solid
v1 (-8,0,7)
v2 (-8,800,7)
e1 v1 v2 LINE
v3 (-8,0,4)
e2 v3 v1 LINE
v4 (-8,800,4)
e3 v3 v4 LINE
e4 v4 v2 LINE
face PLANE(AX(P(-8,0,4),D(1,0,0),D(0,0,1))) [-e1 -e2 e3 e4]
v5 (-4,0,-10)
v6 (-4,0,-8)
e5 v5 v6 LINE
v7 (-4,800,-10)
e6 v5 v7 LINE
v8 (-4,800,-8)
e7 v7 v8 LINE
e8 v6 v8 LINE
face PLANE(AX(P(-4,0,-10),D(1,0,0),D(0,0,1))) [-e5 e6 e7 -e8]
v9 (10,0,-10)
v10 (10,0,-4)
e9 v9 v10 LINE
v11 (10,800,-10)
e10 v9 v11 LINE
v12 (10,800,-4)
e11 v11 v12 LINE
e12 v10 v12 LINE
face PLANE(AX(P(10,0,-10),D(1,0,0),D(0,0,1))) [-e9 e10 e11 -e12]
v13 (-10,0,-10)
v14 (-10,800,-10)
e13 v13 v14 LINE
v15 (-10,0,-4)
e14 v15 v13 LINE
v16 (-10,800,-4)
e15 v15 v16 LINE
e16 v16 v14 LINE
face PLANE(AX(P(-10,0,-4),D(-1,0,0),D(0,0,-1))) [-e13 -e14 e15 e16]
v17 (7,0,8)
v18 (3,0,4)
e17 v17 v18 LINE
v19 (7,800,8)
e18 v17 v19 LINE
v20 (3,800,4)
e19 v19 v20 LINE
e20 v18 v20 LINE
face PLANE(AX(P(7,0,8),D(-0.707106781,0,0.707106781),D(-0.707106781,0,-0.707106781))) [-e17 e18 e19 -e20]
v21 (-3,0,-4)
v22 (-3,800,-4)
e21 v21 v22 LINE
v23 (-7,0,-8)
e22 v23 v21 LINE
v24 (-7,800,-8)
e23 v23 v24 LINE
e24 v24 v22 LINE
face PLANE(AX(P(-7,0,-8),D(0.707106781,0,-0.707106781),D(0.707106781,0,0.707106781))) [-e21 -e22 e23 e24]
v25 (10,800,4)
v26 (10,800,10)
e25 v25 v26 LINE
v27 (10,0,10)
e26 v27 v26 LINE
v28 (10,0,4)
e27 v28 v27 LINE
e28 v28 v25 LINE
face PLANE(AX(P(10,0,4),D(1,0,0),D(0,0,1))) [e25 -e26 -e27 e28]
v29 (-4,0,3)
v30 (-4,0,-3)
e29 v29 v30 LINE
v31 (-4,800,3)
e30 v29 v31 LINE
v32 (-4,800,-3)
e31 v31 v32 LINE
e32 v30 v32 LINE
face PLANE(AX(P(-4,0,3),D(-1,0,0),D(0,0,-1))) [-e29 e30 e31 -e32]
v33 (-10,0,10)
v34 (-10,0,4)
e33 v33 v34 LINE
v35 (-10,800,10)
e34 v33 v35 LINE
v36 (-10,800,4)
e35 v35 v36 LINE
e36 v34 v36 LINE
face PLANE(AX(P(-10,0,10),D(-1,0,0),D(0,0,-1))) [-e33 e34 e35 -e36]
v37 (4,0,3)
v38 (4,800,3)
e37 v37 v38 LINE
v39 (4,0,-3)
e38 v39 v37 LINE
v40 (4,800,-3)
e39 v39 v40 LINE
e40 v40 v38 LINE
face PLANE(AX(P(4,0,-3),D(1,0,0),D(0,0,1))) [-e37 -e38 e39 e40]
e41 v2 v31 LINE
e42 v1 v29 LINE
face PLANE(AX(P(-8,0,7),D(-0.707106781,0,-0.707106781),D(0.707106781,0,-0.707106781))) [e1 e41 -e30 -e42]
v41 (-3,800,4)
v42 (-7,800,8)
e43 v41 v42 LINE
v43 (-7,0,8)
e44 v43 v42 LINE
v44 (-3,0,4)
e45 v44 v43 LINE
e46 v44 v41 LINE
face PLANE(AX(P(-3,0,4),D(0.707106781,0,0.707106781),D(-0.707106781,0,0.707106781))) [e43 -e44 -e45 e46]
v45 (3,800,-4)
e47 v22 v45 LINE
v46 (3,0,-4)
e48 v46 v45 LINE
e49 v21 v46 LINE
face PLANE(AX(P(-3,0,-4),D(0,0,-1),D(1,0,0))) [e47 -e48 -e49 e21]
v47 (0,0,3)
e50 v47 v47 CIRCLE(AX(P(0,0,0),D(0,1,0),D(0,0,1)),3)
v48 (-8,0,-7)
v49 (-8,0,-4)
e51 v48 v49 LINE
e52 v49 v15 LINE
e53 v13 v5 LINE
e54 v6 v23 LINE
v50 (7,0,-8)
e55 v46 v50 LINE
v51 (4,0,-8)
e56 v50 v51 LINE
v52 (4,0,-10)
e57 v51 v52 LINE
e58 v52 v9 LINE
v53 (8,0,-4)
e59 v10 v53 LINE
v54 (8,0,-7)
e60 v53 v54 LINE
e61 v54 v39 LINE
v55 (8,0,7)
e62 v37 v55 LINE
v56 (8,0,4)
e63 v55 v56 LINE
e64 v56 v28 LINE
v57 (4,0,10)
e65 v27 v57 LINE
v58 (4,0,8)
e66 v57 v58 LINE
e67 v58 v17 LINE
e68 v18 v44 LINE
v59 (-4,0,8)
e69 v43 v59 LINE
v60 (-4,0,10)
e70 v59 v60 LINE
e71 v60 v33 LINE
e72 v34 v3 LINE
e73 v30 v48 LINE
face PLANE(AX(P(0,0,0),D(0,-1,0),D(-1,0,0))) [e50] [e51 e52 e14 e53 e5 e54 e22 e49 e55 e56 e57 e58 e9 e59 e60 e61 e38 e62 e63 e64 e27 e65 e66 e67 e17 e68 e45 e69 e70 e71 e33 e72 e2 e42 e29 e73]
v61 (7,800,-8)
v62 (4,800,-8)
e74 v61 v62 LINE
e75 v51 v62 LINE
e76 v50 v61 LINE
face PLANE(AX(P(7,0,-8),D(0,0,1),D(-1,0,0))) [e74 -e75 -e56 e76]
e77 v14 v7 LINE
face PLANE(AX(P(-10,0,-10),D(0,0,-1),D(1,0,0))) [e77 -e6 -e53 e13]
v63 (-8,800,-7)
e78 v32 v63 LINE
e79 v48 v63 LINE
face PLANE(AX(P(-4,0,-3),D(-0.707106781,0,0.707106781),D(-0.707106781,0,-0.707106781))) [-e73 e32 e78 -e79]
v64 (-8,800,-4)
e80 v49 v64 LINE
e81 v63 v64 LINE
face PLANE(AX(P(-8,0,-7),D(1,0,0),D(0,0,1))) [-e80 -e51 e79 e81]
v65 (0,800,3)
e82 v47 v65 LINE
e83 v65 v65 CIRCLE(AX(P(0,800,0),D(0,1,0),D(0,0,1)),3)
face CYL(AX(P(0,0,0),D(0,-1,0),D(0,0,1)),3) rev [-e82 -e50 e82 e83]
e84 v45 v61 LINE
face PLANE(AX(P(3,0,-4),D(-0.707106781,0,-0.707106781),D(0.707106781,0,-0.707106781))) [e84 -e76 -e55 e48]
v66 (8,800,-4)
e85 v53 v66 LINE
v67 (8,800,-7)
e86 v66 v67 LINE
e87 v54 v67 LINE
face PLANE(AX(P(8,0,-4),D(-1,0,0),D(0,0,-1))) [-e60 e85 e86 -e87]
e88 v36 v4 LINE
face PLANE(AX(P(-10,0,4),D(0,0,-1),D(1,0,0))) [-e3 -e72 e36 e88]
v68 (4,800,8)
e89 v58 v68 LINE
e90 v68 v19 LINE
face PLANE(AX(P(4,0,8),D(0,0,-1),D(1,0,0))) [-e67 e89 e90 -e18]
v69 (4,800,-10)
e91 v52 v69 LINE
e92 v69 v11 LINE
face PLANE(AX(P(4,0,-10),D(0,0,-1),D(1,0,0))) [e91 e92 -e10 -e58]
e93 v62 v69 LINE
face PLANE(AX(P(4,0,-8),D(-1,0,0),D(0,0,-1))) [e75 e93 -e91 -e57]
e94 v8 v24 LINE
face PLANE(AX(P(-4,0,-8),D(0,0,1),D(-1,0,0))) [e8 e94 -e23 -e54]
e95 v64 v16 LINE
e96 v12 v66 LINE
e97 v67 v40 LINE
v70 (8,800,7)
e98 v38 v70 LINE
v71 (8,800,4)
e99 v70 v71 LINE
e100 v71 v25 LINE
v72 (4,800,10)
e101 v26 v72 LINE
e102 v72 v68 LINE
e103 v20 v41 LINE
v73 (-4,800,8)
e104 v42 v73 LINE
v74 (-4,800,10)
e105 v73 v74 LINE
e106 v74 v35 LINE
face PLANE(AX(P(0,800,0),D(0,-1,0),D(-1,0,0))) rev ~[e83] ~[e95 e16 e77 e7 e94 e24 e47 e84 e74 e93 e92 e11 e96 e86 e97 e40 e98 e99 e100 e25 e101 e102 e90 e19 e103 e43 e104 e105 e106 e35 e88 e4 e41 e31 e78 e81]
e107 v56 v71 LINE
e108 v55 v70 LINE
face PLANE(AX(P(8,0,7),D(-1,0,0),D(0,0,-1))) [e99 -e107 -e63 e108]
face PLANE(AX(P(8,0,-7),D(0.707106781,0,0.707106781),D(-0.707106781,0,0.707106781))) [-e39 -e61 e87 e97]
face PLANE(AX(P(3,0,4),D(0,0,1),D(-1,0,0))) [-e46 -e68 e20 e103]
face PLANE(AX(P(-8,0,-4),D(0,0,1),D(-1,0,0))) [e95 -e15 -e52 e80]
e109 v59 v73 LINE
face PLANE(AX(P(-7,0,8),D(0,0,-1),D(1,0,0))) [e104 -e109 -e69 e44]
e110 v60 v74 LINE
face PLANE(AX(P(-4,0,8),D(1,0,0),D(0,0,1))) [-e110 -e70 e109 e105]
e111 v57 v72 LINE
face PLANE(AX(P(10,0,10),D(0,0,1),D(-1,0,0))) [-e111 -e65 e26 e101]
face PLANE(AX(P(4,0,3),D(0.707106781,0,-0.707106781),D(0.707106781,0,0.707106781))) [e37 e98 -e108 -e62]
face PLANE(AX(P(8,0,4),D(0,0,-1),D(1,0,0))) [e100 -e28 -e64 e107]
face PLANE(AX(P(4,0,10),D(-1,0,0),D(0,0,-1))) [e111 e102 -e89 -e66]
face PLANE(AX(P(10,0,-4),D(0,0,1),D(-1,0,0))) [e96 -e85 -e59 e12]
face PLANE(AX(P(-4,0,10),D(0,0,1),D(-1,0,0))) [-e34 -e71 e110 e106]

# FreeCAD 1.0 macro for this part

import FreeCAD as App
import Part
import Sketcher

doc = App.newDocument("Part")
body = doc.addObject("PartDesign::Body", "Body")

# Sketch on XZ plane
sketch1 = doc.addObject("Sketcher::SketchObject", "Sketch")
body.addObject(sketch1)
sketch1.AttachmentSupport = (doc.XZ_Plane, [""])
sketch1.MapMode = "FlatFace"
sketch1.addGeometry([
    Part.LineSegment(App.Vector(-4, -8, 0), App.Vector(-4, -10, 0)),  # 0
    Part.LineSegment(App.Vector(-4, -10, 0), App.Vector(-10, -10, 0)),  # 1
    Part.LineSegment(App.Vector(-10, -10, 0), App.Vector(-10, -4, 0)),  # 2
    Part.LineSegment(App.Vector(-10, -4, 0), App.Vector(-8, -4, 0)),  # 3
    Part.LineSegment(App.Vector(-8, -4, 0), App.Vector(-8, -7, 0)),  # 4
    Part.LineSegment(App.Vector(-8, -7, 0), App.Vector(-4, -3, 0)),  # 5
    Part.LineSegment(App.Vector(-4, -3, 0), App.Vector(-4, 3, 0)),  # 6
    Part.LineSegment(App.Vector(-4, 3, 0), App.Vector(-8, 7, 0)),  # 7
    Part.LineSegment(App.Vector(-8, 7, 0), App.Vector(-8, 4, 0)),  # 8
    Part.LineSegment(App.Vector(-8, 4, 0), App.Vector(-10, 4, 0)),  # 9
    Part.LineSegment(App.Vector(-10, 4, 0), App.Vector(-10, 10, 0)),  # 10
    Part.LineSegment(App.Vector(-10, 10, 0), App.Vector(-4, 10, 0)),  # 11
    Part.LineSegment(App.Vector(-4, 10, 0), App.Vector(-4, 8, 0)),  # 12
    Part.LineSegment(App.Vector(-4, 8, 0), App.Vector(-7, 8, 0)),  # 13
    Part.LineSegment(App.Vector(-7, 8, 0), App.Vector(-3, 4, 0)),  # 14
    Part.LineSegment(App.Vector(-3, 4, 0), App.Vector(3, 4, 0)),  # 15
    Part.LineSegment(App.Vector(3, 4, 0), App.Vector(7, 8, 0)),  # 16
    Part.LineSegment(App.Vector(7, 8, 0), App.Vector(4, 8, 0)),  # 17
    Part.LineSegment(App.Vector(4, 8, 0), App.Vector(4, 10, 0)),  # 18
    Part.LineSegment(App.Vector(4, 10, 0), App.Vector(10, 10, 0)),  # 19
    Part.LineSegment(App.Vector(10, 10, 0), App.Vector(10, 4, 0)),  # 20
    Part.LineSegment(App.Vector(10, 4, 0), App.Vector(8, 4, 0)),  # 21
    Part.LineSegment(App.Vector(8, 4, 0), App.Vector(8, 7, 0)),  # 22
    Part.LineSegment(App.Vector(8, 7, 0), App.Vector(4, 3, 0)),  # 23
    Part.LineSegment(App.Vector(4, 3, 0), App.Vector(4, -3, 0)),  # 24
    Part.LineSegment(App.Vector(4, -3, 0), App.Vector(8, -7, 0)),  # 25
    Part.LineSegment(App.Vector(8, -7, 0), App.Vector(8, -4, 0)),  # 26
    Part.LineSegment(App.Vector(8, -4, 0), App.Vector(10, -4, 0)),  # 27
    Part.LineSegment(App.Vector(10, -4, 0), App.Vector(10, -10, 0)),  # 28
    Part.LineSegment(App.Vector(10, -10, 0), App.Vector(4, -10, 0)),  # 29
    Part.LineSegment(App.Vector(4, -10, 0), App.Vector(4, -8, 0)),  # 30
    Part.LineSegment(App.Vector(4, -8, 0), App.Vector(7, -8, 0)),  # 31
    Part.LineSegment(App.Vector(7, -8, 0), App.Vector(3, -4, 0)),  # 32
    Part.LineSegment(App.Vector(3, -4, 0), App.Vector(-3, -4, 0)),  # 33
    Part.LineSegment(App.Vector(-3, -4, 0), App.Vector(-7, -8, 0)),  # 34
    Part.LineSegment(App.Vector(-7, -8, 0), App.Vector(-4, -8, 0)),  # 35
    Part.Circle(App.Vector(0, 0, 0), App.Vector(0, 0, 1), 3),  # 36
], False)
sketch1.addConstraint([
    Sketcher.Constraint("Coincident", 0, 2, 1, 1),
    Sketcher.Constraint("Coincident", 1, 2, 2, 1),
    Sketcher.Constraint("Coincident", 2, 2, 3, 1),
    Sketcher.Constraint("Coincident", 3, 2, 4, 1),
    Sketcher.Constraint("Coincident", 4, 2, 5, 1),
    Sketcher.Constraint("Coincident", 5, 2, 6, 1),
    Sketcher.Constraint("Coincident", 6, 2, 7, 1),
    Sketcher.Constraint("Coincident", 7, 2, 8, 1),
    Sketcher.Constraint("Coincident", 8, 2, 9, 1),
    Sketcher.Constraint("Coincident", 9, 2, 10, 1),
    Sketcher.Constraint("Coincident", 10, 2, 11, 1),
    Sketcher.Constraint("Coincident", 11, 2, 12, 1),
    Sketcher.Constraint("Coincident", 12, 2, 13, 1),
    Sketcher.Constraint("Coincident", 13, 2, 14, 1),
    Sketcher.Constraint("Coincident", 14, 2, 15, 1),
    Sketcher.Constraint("Coincident", 15, 2, 16, 1),
    Sketcher.Constraint("Coincident", 16, 2, 17, 1),
    Sketcher.Constraint("Coincident", 17, 2, 18, 1),
    Sketcher.Constraint("Coincident", 18, 2, 19, 1),
    Sketcher.Constraint("Coincident", 19, 2, 20, 1),
    Sketcher.Constraint("Coincident", 20, 2, 21, 1),
    Sketcher.Constraint("Coincident", 21, 2, 22, 1),
    Sketcher.Constraint("Coincident", 22, 2, 23, 1),
    Sketcher.Constraint("Coincident", 23, 2, 24, 1),
    Sketcher.Constraint("Coincident", 24, 2, 25, 1),
    Sketcher.Constraint("Coincident", 25, 2, 26, 1),
    Sketcher.Constraint("Coincident", 26, 2, 27, 1),
    Sketcher.Constraint("Coincident", 27, 2, 28, 1),
    Sketcher.Constraint("Coincident", 28, 2, 29, 1),
    Sketcher.Constraint("Coincident", 29, 2, 30, 1),
    Sketcher.Constraint("Coincident", 30, 2, 31, 1),
    Sketcher.Constraint("Coincident", 31, 2, 32, 1),
    Sketcher.Constraint("Coincident", 32, 2, 33, 1),
    Sketcher.Constraint("Coincident", 33, 2, 34, 1),
    Sketcher.Constraint("Coincident", 34, 2, 35, 1),
    Sketcher.Constraint("Coincident", 35, 2, 0, 1),
    Sketcher.Constraint("Vertical", 0),
    Sketcher.Constraint("Horizontal", 1),
    Sketcher.Constraint("Vertical", 2),
    Sketcher.Constraint("Horizontal", 3),
    Sketcher.Constraint("Vertical", 4),
    Sketcher.Constraint("Vertical", 6),
    Sketcher.Constraint("Vertical", 8),
    Sketcher.Constraint("Horizontal", 9),
    Sketcher.Constraint("Vertical", 10),
    Sketcher.Constraint("Horizontal", 11),
    Sketcher.Constraint("Vertical", 12),
    Sketcher.Constraint("Horizontal", 13),
    Sketcher.Constraint("Horizontal", 15),
    Sketcher.Constraint("Horizontal", 17),
    Sketcher.Constraint("Vertical", 18),
    Sketcher.Constraint("Horizontal", 19),
    Sketcher.Constraint("Vertical", 20),
    Sketcher.Constraint("Horizontal", 21),
    Sketcher.Constraint("Vertical", 22),
    Sketcher.Constraint("Vertical", 24),
    Sketcher.Constraint("Vertical", 26),
    Sketcher.Constraint("Horizontal", 27),
    Sketcher.Constraint("Vertical", 28),
    Sketcher.Constraint("Horizontal", 29),
    Sketcher.Constraint("Vertical", 30),
    Sketcher.Constraint("Horizontal", 31),
    Sketcher.Constraint("Horizontal", 33),
    Sketcher.Constraint("Horizontal", 35),
    Sketcher.Constraint("Coincident", 36, 3, -1, 1),
    Sketcher.Constraint("Symmetric", 0, 2, 18, 2, -1, 1),
    Sketcher.Constraint("Symmetric", 2, 2, 20, 2, -1, 1),
    Sketcher.Constraint("Symmetric", 4, 2, 22, 2, -1, 1),
    Sketcher.Constraint("Symmetric", 5, 2, 23, 2, -1, 1),
    Sketcher.Constraint("Symmetric", 7, 2, 25, 2, -1, 1),
    Sketcher.Constraint("Symmetric", 9, 2, 27, 2, -1, 1),
    Sketcher.Constraint("Symmetric", 11, 2, 29, 2, -1, 1),
    Sketcher.Constraint("Symmetric", 13, 2, 31, 2, -1, 1),
    Sketcher.Constraint("Symmetric", 14, 2, 32, 2, -1, 1),
    Sketcher.Constraint("Symmetric", 16, 2, 34, 2, -1, 1),
    Sketcher.Constraint("Symmetric", 13, 2, 16, 2, -2),
    Sketcher.Constraint("Symmetric", 11, 2, 18, 2, -2),
    Sketcher.Constraint("Symmetric", 9, 2, 20, 2, -2),
    Sketcher.Constraint("Symmetric", 7, 2, 22, 2, -2),
    Sketcher.Constraint("Perpendicular", 5, 7),
    Sketcher.Constraint("Parallel", 7, 14),
    Sketcher.Constraint("Perpendicular", 14, 16),
    Sketcher.Constraint("Perpendicular", 23, 25),
    Sketcher.Constraint("Perpendicular", 32, 34),
    Sketcher.Constraint("Horizontal", 9, 2, 14, 2),
    Sketcher.Constraint("Horizontal", 6, 2, 23, 2),
    Sketcher.Constraint("Vertical", 0, 2, 5, 2),
    Sketcher.Constraint("Equal", 11, 15),
    Sketcher.Constraint("Equal", 27, 0),
    Sketcher.Constraint("Equal", 33, 2),
    Sketcher.Constraint("Equal", 35, 4),
    Sketcher.Constraint("Equal", 2, 6),
    Sketcher.Constraint("Diameter", 36, 6.0),
    Sketcher.Constraint("DistanceX", 1, 2, 1, 1, 6.0),
    Sketcher.Constraint("DistanceX", 3, 1, 3, 2, 2.0),
    Sketcher.Constraint("DistanceX", 13, 2, 13, 1, 3.0),
])
pad1 = doc.addObject("PartDesign::Pad", "Pad")
body.addObject(pad1)
pad1.Profile = sketch1
pad1.Length = 800
pad1.Reversed = True

doc.recompute()
